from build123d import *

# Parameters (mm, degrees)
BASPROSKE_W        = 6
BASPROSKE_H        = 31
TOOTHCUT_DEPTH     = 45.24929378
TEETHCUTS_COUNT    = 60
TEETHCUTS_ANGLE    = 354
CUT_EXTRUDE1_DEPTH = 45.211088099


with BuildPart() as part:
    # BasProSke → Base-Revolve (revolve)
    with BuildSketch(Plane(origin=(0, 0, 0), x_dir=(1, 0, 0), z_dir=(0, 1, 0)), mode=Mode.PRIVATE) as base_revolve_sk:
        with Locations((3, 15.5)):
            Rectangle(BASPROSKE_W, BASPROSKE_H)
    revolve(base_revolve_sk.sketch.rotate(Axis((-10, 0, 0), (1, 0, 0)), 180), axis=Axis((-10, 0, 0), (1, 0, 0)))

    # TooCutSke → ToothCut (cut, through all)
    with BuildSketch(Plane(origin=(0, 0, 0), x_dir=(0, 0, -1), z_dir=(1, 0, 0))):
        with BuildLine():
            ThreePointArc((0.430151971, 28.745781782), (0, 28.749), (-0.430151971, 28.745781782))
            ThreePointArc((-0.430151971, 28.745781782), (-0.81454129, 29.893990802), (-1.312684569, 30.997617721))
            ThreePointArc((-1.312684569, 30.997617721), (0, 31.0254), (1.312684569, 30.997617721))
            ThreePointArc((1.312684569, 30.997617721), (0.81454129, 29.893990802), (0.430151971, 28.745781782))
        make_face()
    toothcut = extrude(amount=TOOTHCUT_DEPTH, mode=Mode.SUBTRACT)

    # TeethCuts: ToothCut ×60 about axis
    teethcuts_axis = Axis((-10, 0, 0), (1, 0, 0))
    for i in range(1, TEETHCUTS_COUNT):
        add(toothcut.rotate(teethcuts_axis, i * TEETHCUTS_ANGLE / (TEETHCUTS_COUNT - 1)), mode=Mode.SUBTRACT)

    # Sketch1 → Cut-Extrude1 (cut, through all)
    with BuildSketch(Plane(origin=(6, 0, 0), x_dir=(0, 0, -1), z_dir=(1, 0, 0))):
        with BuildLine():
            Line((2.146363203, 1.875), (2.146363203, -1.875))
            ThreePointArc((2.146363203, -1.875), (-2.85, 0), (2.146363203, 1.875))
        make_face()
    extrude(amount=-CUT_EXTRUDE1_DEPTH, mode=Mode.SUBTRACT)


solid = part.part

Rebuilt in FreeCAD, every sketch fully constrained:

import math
import FreeCAD as App
import Part
import Sketcher

V = App.Vector


def add_polygon(sketch, points):
    """Adds a closed chain of lines whose ends are joined by coincident constraints."""
    first, n = sketch.GeometryCount, len(points)
    for a, b in zip(points, points[1:] + points[:1]):
        sketch.addGeometry(Part.LineSegment(App.Vector(*a, 0), App.Vector(*b, 0)), False)
    for i in range(n):
        sketch.addConstraint(Sketcher.Constraint("Coincident", first + i, 2, first + (i + 1) % n, 1))

doc = App.newDocument("Part")
params = doc.addObject("Spreadsheet::Sheet", "Params")
for row, (alias, value) in enumerate([
    ("sketch1_width", "6 mm"),
    ("sketch1_height", "31 mm"),
    ("revolution_angle", "360 deg"),
    ("sketch2_radius", "12 mm"),
    ("sketch3_radius", "2.85 mm"),
    ("sketch3_width", "3.75 mm"),
], start=1):
    params.set(f"A{row}", alias)
    params.set(f"B{row}", "=" + value)
    params.setAlias(f"B{row}", alias)

body = doc.addObject("PartDesign::Body", "Body")

# Sketch on XZ plane
sketch1 = body.newObject("Sketcher::SketchObject", "Sketch")
sketch1.AttachmentSupport = (doc.getObject("XZ_Plane"), [""])
sketch1.MapMode = "FlatFace"
add_polygon(sketch1, [(0, -31), (0, 0), (6, 0), (6, -31)])  # lines 0-3
sketch1.addConstraint([
    Sketcher.Constraint("Vertical", 0),
    Sketcher.Constraint("Horizontal", 1),
    Sketcher.Constraint("Vertical", 2),
    Sketcher.Constraint("Horizontal", 3),
    Sketcher.Constraint("Coincident", 0, 2, -1, 1),
    Sketcher.Constraint("DistanceX", 1, 1, 1, 2, 6.0),
    Sketcher.Constraint("DistanceY", 0, 1, 0, 2, 31.0),
])
sketch1.setExpression("Constraints[9]", "Params.sketch1_width")
sketch1.setExpression("Constraints[10]", "Params.sketch1_height")
revolution = body.newObject("PartDesign::Revolution", "Revolution")
revolution.Profile = sketch1
revolution.ReferenceAxis = (sketch1, ["H_Axis"])
revolution.setExpression("Angle", "Params.revolution_angle")

# Sketch on YZ plane
sketch2 = body.newObject("Sketcher::SketchObject", "Sketch001")
sketch2.AttachmentSupport = (doc.getObject("YZ_Plane"), [""])
sketch2.MapMode = "FlatFace"
sketch2.addGeometry([
    Part.ArcOfCircle(Part.Circle(V(0.000004, 0, 0), V(0, 0, 1), 28.748996), math.radians(-0.85731), math.radians(0.85731)),
    Part.ArcOfCircle(Part.Circle(V(25.515264, -11.98713, 0), V(0, 0, 1), 12), math.radians(62.815145), math.radians(74.382749)),
    Part.ArcOfCircle(Part.Circle(V(0, 0, 0), V(0, 0, 1), 31.0254), math.radians(-2.424908), math.radians(2.424908)),
    Part.ArcOfCircle(Part.Circle(V(25.515264, 11.98713, 0), V(0, 0, 1), 12), math.radians(-74.382749), math.radians(-62.815145)),
], False)
sketch2.addConstraint([
    Sketcher.Constraint("Coincident", 0, 1, 1, 2),
    Sketcher.Constraint("Coincident", 1, 1, 2, 1),
    Sketcher.Constraint("Coincident", 2, 2, 3, 2),
    Sketcher.Constraint("Coincident", 3, 1, 0, 2),
    Sketcher.Constraint("Coincident", 0, 3, -1, 1),
    Sketcher.Constraint("Coincident", 2, 3, -1, 1),
    Sketcher.Constraint("Equal", 1, 3),
    Sketcher.Constraint("Symmetric", 1, 3, 3, 3, -1),
    Sketcher.Constraint("Radius", 1, 12.0),
    Sketcher.Constraint("Radius", 2, 31.0254),
    Sketcher.Constraint("Radius", 0, 28.748996),
    Sketcher.Constraint("DistanceY", 1, 3, -1, 1, 11.98713),
    Sketcher.Constraint("DistanceY", 0, 1, -1, 1, 0.430152),
])
sketch2.setExpression("Constraints[8]", "Params.sketch2_radius")
pocket1 = body.newObject("PartDesign::Pocket", "Pocket")
pocket1.Profile = sketch2
pocket1.Type = "ThroughAll"
pocket1.Reversed = True
doc.recompute()

polarpattern = body.newObject("PartDesign::PolarPattern", "PolarPattern")
polarpattern.Originals = [pocket1]
polarpattern.Axis = (doc.getObject("X_Axis"), [""])
polarpattern.Angle = 360
polarpattern.Occurrences = 60
body.Tip = polarpattern

# Sketch on YZ plane
sketch3 = body.newObject("Sketcher::SketchObject", "Sketch002")
sketch3.AttachmentSupport = (doc.getObject("YZ_Plane"), [""])
sketch3.MapMode = "FlatFace"
sketch3.AttachmentOffset = App.Placement(V(0, 0, 6), App.Rotation())
sketch3.addGeometry([
    Part.LineSegment(V(-1.875, -2.146363, 0), V(1.875, -2.146363, 0)),
    Part.ArcOfCircle(Part.Circle(V(0, 0, 0), V(0, 0, 1), 2.85), math.radians(-48.86049), math.radians(228.86049)),
], False)
sketch3.addConstraint([
    Sketcher.Constraint("Coincident", 0, 1, 1, 2),
    Sketcher.Constraint("Coincident", 1, 1, 0, 2),
    Sketcher.Constraint("Horizontal", 0),
    Sketcher.Constraint("Coincident", 1, 3, -1, 1),
    Sketcher.Constraint("Radius", 1, 2.85),
    Sketcher.Constraint("DistanceX", 0, 1, 0, 2, 3.75),
])
sketch3.setExpression("Constraints[4]", "Params.sketch3_radius")
sketch3.setExpression("Constraints[5]", "Params.sketch3_width")
pocket2 = body.newObject("PartDesign::Pocket", "Pocket001")
pocket2.Profile = sketch3
pocket2.Type = "ThroughAll"

doc.recompute()
